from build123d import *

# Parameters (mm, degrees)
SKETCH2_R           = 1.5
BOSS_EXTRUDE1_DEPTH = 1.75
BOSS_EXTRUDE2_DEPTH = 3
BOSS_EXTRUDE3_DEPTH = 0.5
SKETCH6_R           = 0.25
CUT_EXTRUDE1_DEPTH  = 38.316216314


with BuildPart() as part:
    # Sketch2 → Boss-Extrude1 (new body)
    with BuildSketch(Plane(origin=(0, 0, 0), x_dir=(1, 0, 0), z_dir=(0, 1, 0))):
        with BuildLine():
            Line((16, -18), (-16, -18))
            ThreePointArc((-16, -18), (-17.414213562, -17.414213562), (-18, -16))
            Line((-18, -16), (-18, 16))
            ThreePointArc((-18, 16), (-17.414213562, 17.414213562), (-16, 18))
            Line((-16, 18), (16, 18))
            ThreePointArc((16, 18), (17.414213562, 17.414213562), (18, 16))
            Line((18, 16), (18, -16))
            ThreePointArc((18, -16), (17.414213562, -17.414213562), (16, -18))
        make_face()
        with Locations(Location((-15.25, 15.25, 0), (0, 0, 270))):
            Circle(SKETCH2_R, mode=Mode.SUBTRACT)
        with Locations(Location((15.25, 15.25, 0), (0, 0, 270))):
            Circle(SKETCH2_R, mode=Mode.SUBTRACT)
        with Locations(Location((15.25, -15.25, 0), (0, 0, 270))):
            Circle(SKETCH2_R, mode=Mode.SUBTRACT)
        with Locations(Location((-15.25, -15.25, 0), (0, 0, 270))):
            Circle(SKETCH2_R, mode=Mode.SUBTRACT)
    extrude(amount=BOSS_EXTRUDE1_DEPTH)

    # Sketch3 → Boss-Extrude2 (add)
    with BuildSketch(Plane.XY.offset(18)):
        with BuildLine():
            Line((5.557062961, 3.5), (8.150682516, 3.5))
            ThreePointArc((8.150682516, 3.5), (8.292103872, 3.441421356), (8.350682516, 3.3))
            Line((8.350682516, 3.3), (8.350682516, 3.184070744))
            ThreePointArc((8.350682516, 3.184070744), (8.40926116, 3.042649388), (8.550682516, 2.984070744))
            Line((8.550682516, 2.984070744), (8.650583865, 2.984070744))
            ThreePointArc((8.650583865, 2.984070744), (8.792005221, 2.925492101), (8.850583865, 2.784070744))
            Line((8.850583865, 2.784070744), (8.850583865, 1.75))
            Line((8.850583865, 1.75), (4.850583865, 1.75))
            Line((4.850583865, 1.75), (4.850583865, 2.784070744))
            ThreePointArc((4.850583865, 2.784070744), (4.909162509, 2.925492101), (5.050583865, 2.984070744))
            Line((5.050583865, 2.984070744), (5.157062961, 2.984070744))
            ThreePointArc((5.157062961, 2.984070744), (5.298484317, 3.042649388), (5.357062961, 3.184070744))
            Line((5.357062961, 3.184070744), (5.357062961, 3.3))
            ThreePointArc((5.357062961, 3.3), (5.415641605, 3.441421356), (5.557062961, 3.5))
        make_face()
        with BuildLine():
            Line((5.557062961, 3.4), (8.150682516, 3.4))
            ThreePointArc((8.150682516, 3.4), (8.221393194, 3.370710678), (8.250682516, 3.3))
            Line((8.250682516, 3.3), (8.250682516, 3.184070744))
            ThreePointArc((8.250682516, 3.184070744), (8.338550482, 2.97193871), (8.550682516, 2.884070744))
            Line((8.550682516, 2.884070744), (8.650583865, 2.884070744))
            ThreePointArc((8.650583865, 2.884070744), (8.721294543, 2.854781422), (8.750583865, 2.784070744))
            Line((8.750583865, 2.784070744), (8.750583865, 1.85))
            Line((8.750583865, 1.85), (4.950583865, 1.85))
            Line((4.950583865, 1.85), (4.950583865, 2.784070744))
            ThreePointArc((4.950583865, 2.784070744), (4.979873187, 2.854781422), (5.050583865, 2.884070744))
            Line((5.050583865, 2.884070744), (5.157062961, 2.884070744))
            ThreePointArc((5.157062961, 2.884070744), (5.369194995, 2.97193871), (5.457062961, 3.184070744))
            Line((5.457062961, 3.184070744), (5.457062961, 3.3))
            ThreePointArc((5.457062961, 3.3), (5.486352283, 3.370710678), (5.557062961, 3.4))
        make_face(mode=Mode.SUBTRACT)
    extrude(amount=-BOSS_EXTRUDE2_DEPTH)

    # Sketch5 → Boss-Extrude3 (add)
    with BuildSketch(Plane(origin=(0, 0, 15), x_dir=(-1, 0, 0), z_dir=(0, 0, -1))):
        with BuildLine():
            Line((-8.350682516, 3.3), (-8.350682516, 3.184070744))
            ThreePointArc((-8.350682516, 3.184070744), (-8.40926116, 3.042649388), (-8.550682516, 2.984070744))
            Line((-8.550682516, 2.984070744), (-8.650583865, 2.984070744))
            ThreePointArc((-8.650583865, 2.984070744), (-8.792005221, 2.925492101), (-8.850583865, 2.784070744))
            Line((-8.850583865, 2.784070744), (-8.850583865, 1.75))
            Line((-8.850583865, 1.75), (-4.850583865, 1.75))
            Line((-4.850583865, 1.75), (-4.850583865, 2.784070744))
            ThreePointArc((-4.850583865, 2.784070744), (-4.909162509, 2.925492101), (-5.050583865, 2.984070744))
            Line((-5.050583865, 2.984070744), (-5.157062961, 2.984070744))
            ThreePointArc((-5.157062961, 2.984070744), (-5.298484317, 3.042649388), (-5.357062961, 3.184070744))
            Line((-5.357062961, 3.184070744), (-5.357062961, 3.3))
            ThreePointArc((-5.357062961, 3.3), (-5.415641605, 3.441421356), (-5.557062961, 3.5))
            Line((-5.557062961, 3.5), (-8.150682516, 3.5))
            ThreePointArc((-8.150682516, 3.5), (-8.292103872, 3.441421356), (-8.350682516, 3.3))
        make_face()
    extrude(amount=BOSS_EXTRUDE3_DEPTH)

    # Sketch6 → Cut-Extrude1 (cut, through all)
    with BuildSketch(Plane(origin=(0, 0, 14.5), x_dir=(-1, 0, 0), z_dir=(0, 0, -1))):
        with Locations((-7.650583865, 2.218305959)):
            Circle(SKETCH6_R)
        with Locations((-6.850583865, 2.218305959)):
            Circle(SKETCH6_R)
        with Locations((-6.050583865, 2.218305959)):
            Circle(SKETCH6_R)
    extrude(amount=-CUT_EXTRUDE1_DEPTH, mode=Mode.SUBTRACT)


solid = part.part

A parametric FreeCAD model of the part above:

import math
import FreeCAD as App
import Part
import Sketcher
Q = App.Units.Quantity

doc = App.newDocument("Part")
body = doc.addObject("PartDesign::Body", "Body")

# Sketch on XZ plane
sketch1 = body.newObject("Sketcher::SketchObject", "Sketch")
sketch1.AttachmentSupport = (doc.getObject("XZ_Plane"), [""])
sketch1.MapMode = "FlatFace"
sketch1.addGeometry([
    Part.LineSegment(App.Vector(-16, 18, 0), App.Vector(16, 18, 0)),  # 0
    Part.ArcOfCircle(Part.Circle(App.Vector(16, 16, 0), App.Vector(0, 0, 1), 2), math.radians(0), math.radians(90)),  # 1
    Part.LineSegment(App.Vector(18, 16, 0), App.Vector(18, -16, 0)),  # 2
    Part.ArcOfCircle(Part.Circle(App.Vector(16, -16, 0), App.Vector(0, 0, 1), 2), math.radians(-90), math.radians(0)),  # 3
    Part.LineSegment(App.Vector(16, -18, 0), App.Vector(-16, -18, 0)),  # 4
    Part.ArcOfCircle(Part.Circle(App.Vector(-16, -16, 0), App.Vector(0, 0, 1), 2), math.radians(-180), math.radians(-90)),  # 5
    Part.LineSegment(App.Vector(-18, -16, 0), App.Vector(-18, 16, 0)),  # 6
    Part.ArcOfCircle(Part.Circle(App.Vector(-16, 16, 0), App.Vector(0, 0, 1), 2), math.radians(90), math.radians(180)),  # 7
    Part.Circle(App.Vector(15.2, 15.2, 0), App.Vector(0, 0, 1), 1.5),  # 8
    Part.Circle(App.Vector(-15.2, 15.2, 0), App.Vector(0, 0, 1), 1.5),  # 9
    Part.Circle(App.Vector(15.2, -15.2, 0), App.Vector(0, 0, 1), 1.5),  # 10
    Part.Circle(App.Vector(-15.2, -15.2, 0), App.Vector(0, 0, 1), 1.5),  # 11
], False)
sketch1.addConstraint([
    Sketcher.Constraint("Tangent", 0, 2, 1, 2),
    Sketcher.Constraint("Tangent", 1, 1, 2, 1),
    Sketcher.Constraint("Tangent", 2, 2, 3, 2),
    Sketcher.Constraint("Tangent", 3, 1, 4, 1),
    Sketcher.Constraint("Tangent", 4, 2, 5, 2),
    Sketcher.Constraint("Tangent", 5, 1, 6, 1),
    Sketcher.Constraint("Tangent", 6, 2, 7, 2),
    Sketcher.Constraint("Tangent", 7, 1, 0, 1),
    Sketcher.Constraint("Horizontal", 0),
    Sketcher.Constraint("Vertical", 2),
    Sketcher.Constraint("Horizontal", 4),
    Sketcher.Constraint("Vertical", 6),
    Sketcher.Constraint("Equal", 1, 3),
    Sketcher.Constraint("Equal", 3, 5),
    Sketcher.Constraint("Equal", 5, 7),
    Sketcher.Constraint("Equal", 8, 9),
    Sketcher.Constraint("Equal", 9, 10),
    Sketcher.Constraint("Equal", 10, 11),
    Sketcher.Constraint("Symmetric", 1, 3, 5, 3, -1, 1),
    Sketcher.Constraint("Symmetric", 9, 3, 10, 3, -1, 1),
    Sketcher.Constraint("Symmetric", 8, 3, 11, 3, -1, 1),
    Sketcher.Constraint("Symmetric", 8, 3, 9, 3, -2),
    Sketcher.Constraint("Equal", 4, 2),
    Sketcher.Constraint("Diameter", 8, Q("3 mm")),
    Sketcher.Constraint("Radius", 1, Q("2 mm")),
    Sketcher.Constraint("DistanceX", 0, 1, 0, 2, Q("32 mm")),
    Sketcher.Constraint("DistanceX", 9, 3, 8, 3, Q("30.5 mm")),
    Sketcher.Constraint("DistanceY", 10, 3, 8, 3, Q("30.5 mm")),
])
pad1 = body.newObject("PartDesign::Pad", "Pad")
pad1.Profile = sketch1
pad1.Length = 1.75
pad1.Reversed = True

# Sketch on XY plane
sketch2 = body.newObject("Sketcher::SketchObject", "Sketch001")
sketch2.AttachmentSupport = (doc.getObject("XY_Plane"), [""])
sketch2.MapMode = "FlatFace"
sketch2.AttachmentOffset = App.Placement(App.Vector(0, 0, 18), App.Rotation())
sketch2.addGeometry([
    Part.LineSegment(App.Vector(8.15, 3.5, 0), App.Vector(5.56, 3.5, 0)),  # 0
    Part.ArcOfCircle(Part.Circle(App.Vector(5.56, 3.3, 0), App.Vector(0, 0, 1), 0.2), math.radians(90), math.radians(180)),  # 1
    Part.LineSegment(App.Vector(5.36, 3.3, 0), App.Vector(5.36, 3.18, 0)),  # 2
    Part.ArcOfCircle(Part.Circle(App.Vector(5.16, 3.18, 0), App.Vector(0, 0, 1), 0.2), math.radians(-90), math.radians(0)),  # 3
    Part.LineSegment(App.Vector(5.16, 2.98, 0), App.Vector(5.05, 2.98, 0)),  # 4
    Part.ArcOfCircle(Part.Circle(App.Vector(5.05, 2.78, 0), App.Vector(0, 0, 1), 0.2), math.radians(90), math.radians(180)),  # 5
    Part.LineSegment(App.Vector(4.85, 2.78, 0), App.Vector(4.85, 1.75, 0)),  # 6
    Part.LineSegment(App.Vector(4.85, 1.75, 0), App.Vector(8.85, 1.75, 0)),  # 7
    Part.LineSegment(App.Vector(8.85, 1.75, 0), App.Vector(8.85, 2.78, 0)),  # 8
    Part.ArcOfCircle(Part.Circle(App.Vector(8.65, 2.78, 0), App.Vector(0, 0, 1), 0.2), math.radians(0), math.radians(90)),  # 9
    Part.LineSegment(App.Vector(8.65, 2.98, 0), App.Vector(8.55, 2.98, 0)),  # 10
    Part.ArcOfCircle(Part.Circle(App.Vector(8.55, 3.18, 0), App.Vector(0, 0, 1), 0.2), math.radians(-180), math.radians(-90)),  # 11
    Part.LineSegment(App.Vector(8.35, 3.18, 0), App.Vector(8.35, 3.3, 0)),  # 12
    Part.ArcOfCircle(Part.Circle(App.Vector(8.15, 3.3, 0), App.Vector(0, 0, 1), 0.2), math.radians(0), math.radians(90)),  # 13
    Part.LineSegment(App.Vector(5.56, 3.4, 0), App.Vector(8.15, 3.4, 0)),  # 14
    Part.ArcOfCircle(Part.Circle(App.Vector(8.15, 3.3, 0), App.Vector(0, 0, 1), 0.1), math.radians(0), math.radians(90)),  # 15
    Part.LineSegment(App.Vector(8.25, 3.3, 0), App.Vector(8.25, 3.18, 0)),  # 16
    Part.ArcOfCircle(Part.Circle(App.Vector(8.55, 3.18, 0), App.Vector(0, 0, 1), 0.3), math.radians(-180), math.radians(-90)),  # 17
    Part.LineSegment(App.Vector(8.55, 2.88, 0), App.Vector(8.65, 2.88, 0)),  # 18
    Part.ArcOfCircle(Part.Circle(App.Vector(8.65, 2.78, 0), App.Vector(0, 0, 1), 0.1), math.radians(0), math.radians(90)),  # 19
    Part.LineSegment(App.Vector(8.75, 2.78, 0), App.Vector(8.75, 1.85, 0)),  # 20
    Part.LineSegment(App.Vector(8.75, 1.85, 0), App.Vector(4.95, 1.85, 0)),  # 21
    Part.LineSegment(App.Vector(4.95, 1.85, 0), App.Vector(4.95, 2.78, 0)),  # 22
    Part.ArcOfCircle(Part.Circle(App.Vector(5.05, 2.78, 0), App.Vector(0, 0, 1), 0.1), math.radians(90), math.radians(180)),  # 23
    Part.LineSegment(App.Vector(5.05, 2.88, 0), App.Vector(5.16, 2.88, 0)),  # 24
    Part.ArcOfCircle(Part.Circle(App.Vector(5.16, 3.18, 0), App.Vector(0, 0, 1), 0.3), math.radians(-90), math.radians(0)),  # 25
    Part.LineSegment(App.Vector(5.46, 3.18, 0), App.Vector(5.46, 3.3, 0)),  # 26
    Part.ArcOfCircle(Part.Circle(App.Vector(5.56, 3.3, 0), App.Vector(0, 0, 1), 0.1), math.radians(90), math.radians(180)),  # 27
], False)
sketch2.addConstraint([
    Sketcher.Constraint("Tangent", 0, 2, 1, 1),
    Sketcher.Constraint("Tangent", 1, 2, 2, 1),
    Sketcher.Constraint("Tangent", 2, 2, 3, 2),
    Sketcher.Constraint("Tangent", 3, 1, 4, 1),
    Sketcher.Constraint("Tangent", 4, 2, 5, 1),
    Sketcher.Constraint("Tangent", 5, 2, 6, 1),
    Sketcher.Constraint("Coincident", 6, 2, 7, 1),
    Sketcher.Constraint("Coincident", 7, 2, 8, 1),
    Sketcher.Constraint("Tangent", 8, 2, 9, 1),
    Sketcher.Constraint("Tangent", 9, 2, 10, 1),
    Sketcher.Constraint("Tangent", 10, 2, 11, 2),
    Sketcher.Constraint("Tangent", 11, 1, 12, 1),
    Sketcher.Constraint("Tangent", 12, 2, 13, 1),
    Sketcher.Constraint("Tangent", 13, 2, 0, 1),
    Sketcher.Constraint("Tangent", 14, 2, 15, 2),
    Sketcher.Constraint("Tangent", 15, 1, 16, 1),
    Sketcher.Constraint("Tangent", 16, 2, 17, 1),
    Sketcher.Constraint("Tangent", 17, 2, 18, 1),
    Sketcher.Constraint("Tangent", 18, 2, 19, 2),
    Sketcher.Constraint("Tangent", 19, 1, 20, 1),
    Sketcher.Constraint("Coincident", 20, 2, 21, 1),
    Sketcher.Constraint("Coincident", 21, 2, 22, 1),
    Sketcher.Constraint("Tangent", 22, 2, 23, 2),
    Sketcher.Constraint("Tangent", 23, 1, 24, 1),
    Sketcher.Constraint("Tangent", 24, 2, 25, 1),
    Sketcher.Constraint("Tangent", 25, 2, 26, 1),
    Sketcher.Constraint("Tangent", 26, 2, 27, 2),
    Sketcher.Constraint("Tangent", 27, 1, 14, 1),
    Sketcher.Constraint("Horizontal", 0),
    Sketcher.Constraint("Vertical", 2),
    Sketcher.Constraint("Horizontal", 4),
    Sketcher.Constraint("Vertical", 6),
    Sketcher.Constraint("Horizontal", 7),
    Sketcher.Constraint("Vertical", 8),
    Sketcher.Constraint("Horizontal", 10),
    Sketcher.Constraint("Vertical", 12),
    Sketcher.Constraint("Horizontal", 14),
    Sketcher.Constraint("Vertical", 16),
    Sketcher.Constraint("Horizontal", 18),
    Sketcher.Constraint("Vertical", 20),
    Sketcher.Constraint("Horizontal", 21),
    Sketcher.Constraint("Vertical", 22),
    Sketcher.Constraint("Horizontal", 24),
    Sketcher.Constraint("Vertical", 26),
    Sketcher.Constraint("Coincident", 15, 3, 13, 3),
    Sketcher.Constraint("Coincident", 17, 3, 11, 3),
    Sketcher.Constraint("Coincident", 19, 3, 9, 3),
    Sketcher.Constraint("Coincident", 23, 3, 5, 3),
    Sketcher.Constraint("Coincident", 25, 3, 3, 3),
    Sketcher.Constraint("Coincident", 27, 3, 1, 3),
    Sketcher.Constraint("Equal", 1, 3),
    Sketcher.Constraint("Equal", 3, 5),
    Sketcher.Constraint("Equal", 5, 9),
    Sketcher.Constraint("Equal", 9, 11),
    Sketcher.Constraint("Equal", 11, 13),
    Sketcher.Constraint("Horizontal", 5, 3, 9, 3),
    Sketcher.Constraint("Radius", 1, Q("0.2 mm")),
    Sketcher.Constraint("Radius", 15, Q("0.1 mm")),
    Sketcher.Constraint("DistanceX", 7, 1, 7, 2, Q("4 mm")),
    Sketcher.Constraint("DistanceY", -1, 1, 1, 3, Q("3.3 mm")),
    Sketcher.Constraint("DistanceY", 7, 2, 20, 2, Q("0.1 mm")),
    Sketcher.Constraint("DistanceY", -1, 1, 6, 2, Q("1.75 mm")),
    Sketcher.Constraint("DistanceX", 10, 2, 10, 1, Q("0.099901 mm")),
    Sketcher.Constraint("DistanceX", 0, 2, 0, 1, Q("2.59362 mm")),
    Sketcher.Constraint("DistanceY", 2, 2, 2, 1, Q("0.115929 mm")),
    Sketcher.Constraint("DistanceX", -1, 1, 1, 3, Q("5.557063 mm")),
])
pad2 = body.newObject("PartDesign::Pad", "Pad001")
pad2.Profile = sketch2
pad2.Length = 3
pad2.Reversed = True

# Sketch on XY plane
sketch3 = body.newObject("Sketcher::SketchObject", "Sketch002")
sketch3.AttachmentSupport = (doc.getObject("XY_Plane"), [""])
sketch3.MapMode = "FlatFace"
sketch3.AttachmentOffset = App.Placement(App.Vector(0, 0, 15), App.Rotation())
sketch3.addGeometry([
    Part.LineSegment(App.Vector(8.35, 3.3, 0), App.Vector(8.35, 3.18, 0)),  # 0
    Part.ArcOfCircle(Part.Circle(App.Vector(8.55, 3.18, 0), App.Vector(0, 0, 1), 0.2), math.radians(-180), math.radians(-90)),  # 1
    Part.LineSegment(App.Vector(8.55, 2.98, 0), App.Vector(8.65, 2.98, 0)),  # 2
    Part.ArcOfCircle(Part.Circle(App.Vector(8.65, 2.78, 0), App.Vector(0, 0, 1), 0.2), math.radians(0), math.radians(90)),  # 3
    Part.LineSegment(App.Vector(8.85, 2.78, 0), App.Vector(8.85, 1.75, 0)),  # 4
    Part.LineSegment(App.Vector(8.85, 1.75, 0), App.Vector(4.85, 1.75, 0)),  # 5
    Part.LineSegment(App.Vector(4.85, 1.75, 0), App.Vector(4.85, 2.78, 0)),  # 6
    Part.ArcOfCircle(Part.Circle(App.Vector(5.05, 2.78, 0), App.Vector(0, 0, 1), 0.2), math.radians(90), math.radians(180)),  # 7
    Part.LineSegment(App.Vector(5.05, 2.98, 0), App.Vector(5.16, 2.98, 0)),  # 8
    Part.ArcOfCircle(Part.Circle(App.Vector(5.16, 3.18, 0), App.Vector(0, 0, 1), 0.2), math.radians(-90), math.radians(0)),  # 9
    Part.LineSegment(App.Vector(5.36, 3.18, 0), App.Vector(5.36, 3.3, 0)),  # 10
    Part.ArcOfCircle(Part.Circle(App.Vector(5.56, 3.3, 0), App.Vector(0, 0, 1), 0.2), math.radians(90), math.radians(180)),  # 11
    Part.LineSegment(App.Vector(5.56, 3.5, 0), App.Vector(8.15, 3.5, 0)),  # 12
    Part.ArcOfCircle(Part.Circle(App.Vector(8.15, 3.3, 0), App.Vector(0, 0, 1), 0.2), math.radians(0), math.radians(90)),  # 13
], False)
sketch3.addConstraint([
    Sketcher.Constraint("Tangent", 0, 2, 1, 1),
    Sketcher.Constraint("Tangent", 1, 2, 2, 1),
    Sketcher.Constraint("Tangent", 2, 2, 3, 2),
    Sketcher.Constraint("Tangent", 3, 1, 4, 1),
    Sketcher.Constraint("Coincident", 4, 2, 5, 1),
    Sketcher.Constraint("Coincident", 5, 2, 6, 1),
    Sketcher.Constraint("Tangent", 6, 2, 7, 2),
    Sketcher.Constraint("Tangent", 7, 1, 8, 1),
    Sketcher.Constraint("Tangent", 8, 2, 9, 1),
    Sketcher.Constraint("Tangent", 9, 2, 10, 1),
    Sketcher.Constraint("Tangent", 10, 2, 11, 2),
    Sketcher.Constraint("Tangent", 11, 1, 12, 1),
    Sketcher.Constraint("Tangent", 12, 2, 13, 2),
    Sketcher.Constraint("Tangent", 13, 1, 0, 1),
    Sketcher.Constraint("Vertical", 0),
    Sketcher.Constraint("Horizontal", 2),
    Sketcher.Constraint("Vertical", 4),
    Sketcher.Constraint("Horizontal", 5),
    Sketcher.Constraint("Vertical", 6),
    Sketcher.Constraint("Horizontal", 8),
    Sketcher.Constraint("Vertical", 10),
    Sketcher.Constraint("Horizontal", 12),
    Sketcher.Constraint("Equal", 1, 3),
    Sketcher.Constraint("Equal", 3, 7),
    Sketcher.Constraint("Equal", 7, 9),
    Sketcher.Constraint("Equal", 9, 11),
    Sketcher.Constraint("Equal", 11, 13),
    Sketcher.Constraint("Horizontal", 3, 3, 7, 3),
    Sketcher.Constraint("Radius", 1, Q("0.2 mm")),
    Sketcher.Constraint("DistanceX", 5, 2, 5, 1, Q("4 mm")),
    Sketcher.Constraint("DistanceY", -1, 1, 11, 3, Q("3.3 mm")),
    Sketcher.Constraint("DistanceY", -1, 1, 4, 2, Q("1.75 mm")),
    Sketcher.Constraint("DistanceX", 2, 1, 2, 2, Q("0.099901 mm")),
    Sketcher.Constraint("DistanceX", 8, 1, 8, 2, Q("0.106479 mm")),
    Sketcher.Constraint("DistanceY", 0, 2, 0, 1, Q("0.115929 mm")),
    Sketcher.Constraint("DistanceX", -1, 1, 1, 3, Q("8.550683 mm")),
])
pad3 = body.newObject("PartDesign::Pad", "Pad002")
pad3.Profile = sketch3
pad3.Length = 0.5
pad3.Reversed = True

# Sketch on XY plane
sketch4 = body.newObject("Sketcher::SketchObject", "Sketch003")
sketch4.AttachmentSupport = (doc.getObject("XY_Plane"), [""])
sketch4.MapMode = "FlatFace"
sketch4.AttachmentOffset = App.Placement(App.Vector(0, 0, 14.5), App.Rotation())
sketch4.addGeometry([
    Part.Circle(App.Vector(7.65, 2.22, 0), App.Vector(0, 0, 1), 0.25),
    Part.Circle(App.Vector(6.85, 2.22, 0), App.Vector(0, 0, 1), 0.25),
    Part.Circle(App.Vector(6.05, 2.22, 0), App.Vector(0, 0, 1), 0.25),
], False)
sketch4.addConstraint([
    Sketcher.Constraint("Equal", 0, 1),
    Sketcher.Constraint("Equal", 1, 2),
    Sketcher.Constraint("Horizontal", 0, 3, 1, 3),
    Sketcher.Constraint("Horizontal", 1, 3, 2, 3),
    Sketcher.Constraint("Diameter", 0, Q("0.5 mm")),
    Sketcher.Constraint("DistanceX", 1, 3, 0, 3, Q("0.8 mm")),
    Sketcher.Constraint("DistanceX", 2, 3, 1, 3, Q("0.8 mm")),
    Sketcher.Constraint("DistanceX", -1, 1, 0, 3, Q("7.650584 mm")),
    Sketcher.Constraint("DistanceY", -1, 1, 0, 3, Q("2.218306 mm")),
])
pocket1 = body.newObject("PartDesign::Pocket", "Pocket")
pocket1.Profile = sketch4
pocket1.Type = "ThroughAll"
pocket1.Reversed = True

doc.recompute()
